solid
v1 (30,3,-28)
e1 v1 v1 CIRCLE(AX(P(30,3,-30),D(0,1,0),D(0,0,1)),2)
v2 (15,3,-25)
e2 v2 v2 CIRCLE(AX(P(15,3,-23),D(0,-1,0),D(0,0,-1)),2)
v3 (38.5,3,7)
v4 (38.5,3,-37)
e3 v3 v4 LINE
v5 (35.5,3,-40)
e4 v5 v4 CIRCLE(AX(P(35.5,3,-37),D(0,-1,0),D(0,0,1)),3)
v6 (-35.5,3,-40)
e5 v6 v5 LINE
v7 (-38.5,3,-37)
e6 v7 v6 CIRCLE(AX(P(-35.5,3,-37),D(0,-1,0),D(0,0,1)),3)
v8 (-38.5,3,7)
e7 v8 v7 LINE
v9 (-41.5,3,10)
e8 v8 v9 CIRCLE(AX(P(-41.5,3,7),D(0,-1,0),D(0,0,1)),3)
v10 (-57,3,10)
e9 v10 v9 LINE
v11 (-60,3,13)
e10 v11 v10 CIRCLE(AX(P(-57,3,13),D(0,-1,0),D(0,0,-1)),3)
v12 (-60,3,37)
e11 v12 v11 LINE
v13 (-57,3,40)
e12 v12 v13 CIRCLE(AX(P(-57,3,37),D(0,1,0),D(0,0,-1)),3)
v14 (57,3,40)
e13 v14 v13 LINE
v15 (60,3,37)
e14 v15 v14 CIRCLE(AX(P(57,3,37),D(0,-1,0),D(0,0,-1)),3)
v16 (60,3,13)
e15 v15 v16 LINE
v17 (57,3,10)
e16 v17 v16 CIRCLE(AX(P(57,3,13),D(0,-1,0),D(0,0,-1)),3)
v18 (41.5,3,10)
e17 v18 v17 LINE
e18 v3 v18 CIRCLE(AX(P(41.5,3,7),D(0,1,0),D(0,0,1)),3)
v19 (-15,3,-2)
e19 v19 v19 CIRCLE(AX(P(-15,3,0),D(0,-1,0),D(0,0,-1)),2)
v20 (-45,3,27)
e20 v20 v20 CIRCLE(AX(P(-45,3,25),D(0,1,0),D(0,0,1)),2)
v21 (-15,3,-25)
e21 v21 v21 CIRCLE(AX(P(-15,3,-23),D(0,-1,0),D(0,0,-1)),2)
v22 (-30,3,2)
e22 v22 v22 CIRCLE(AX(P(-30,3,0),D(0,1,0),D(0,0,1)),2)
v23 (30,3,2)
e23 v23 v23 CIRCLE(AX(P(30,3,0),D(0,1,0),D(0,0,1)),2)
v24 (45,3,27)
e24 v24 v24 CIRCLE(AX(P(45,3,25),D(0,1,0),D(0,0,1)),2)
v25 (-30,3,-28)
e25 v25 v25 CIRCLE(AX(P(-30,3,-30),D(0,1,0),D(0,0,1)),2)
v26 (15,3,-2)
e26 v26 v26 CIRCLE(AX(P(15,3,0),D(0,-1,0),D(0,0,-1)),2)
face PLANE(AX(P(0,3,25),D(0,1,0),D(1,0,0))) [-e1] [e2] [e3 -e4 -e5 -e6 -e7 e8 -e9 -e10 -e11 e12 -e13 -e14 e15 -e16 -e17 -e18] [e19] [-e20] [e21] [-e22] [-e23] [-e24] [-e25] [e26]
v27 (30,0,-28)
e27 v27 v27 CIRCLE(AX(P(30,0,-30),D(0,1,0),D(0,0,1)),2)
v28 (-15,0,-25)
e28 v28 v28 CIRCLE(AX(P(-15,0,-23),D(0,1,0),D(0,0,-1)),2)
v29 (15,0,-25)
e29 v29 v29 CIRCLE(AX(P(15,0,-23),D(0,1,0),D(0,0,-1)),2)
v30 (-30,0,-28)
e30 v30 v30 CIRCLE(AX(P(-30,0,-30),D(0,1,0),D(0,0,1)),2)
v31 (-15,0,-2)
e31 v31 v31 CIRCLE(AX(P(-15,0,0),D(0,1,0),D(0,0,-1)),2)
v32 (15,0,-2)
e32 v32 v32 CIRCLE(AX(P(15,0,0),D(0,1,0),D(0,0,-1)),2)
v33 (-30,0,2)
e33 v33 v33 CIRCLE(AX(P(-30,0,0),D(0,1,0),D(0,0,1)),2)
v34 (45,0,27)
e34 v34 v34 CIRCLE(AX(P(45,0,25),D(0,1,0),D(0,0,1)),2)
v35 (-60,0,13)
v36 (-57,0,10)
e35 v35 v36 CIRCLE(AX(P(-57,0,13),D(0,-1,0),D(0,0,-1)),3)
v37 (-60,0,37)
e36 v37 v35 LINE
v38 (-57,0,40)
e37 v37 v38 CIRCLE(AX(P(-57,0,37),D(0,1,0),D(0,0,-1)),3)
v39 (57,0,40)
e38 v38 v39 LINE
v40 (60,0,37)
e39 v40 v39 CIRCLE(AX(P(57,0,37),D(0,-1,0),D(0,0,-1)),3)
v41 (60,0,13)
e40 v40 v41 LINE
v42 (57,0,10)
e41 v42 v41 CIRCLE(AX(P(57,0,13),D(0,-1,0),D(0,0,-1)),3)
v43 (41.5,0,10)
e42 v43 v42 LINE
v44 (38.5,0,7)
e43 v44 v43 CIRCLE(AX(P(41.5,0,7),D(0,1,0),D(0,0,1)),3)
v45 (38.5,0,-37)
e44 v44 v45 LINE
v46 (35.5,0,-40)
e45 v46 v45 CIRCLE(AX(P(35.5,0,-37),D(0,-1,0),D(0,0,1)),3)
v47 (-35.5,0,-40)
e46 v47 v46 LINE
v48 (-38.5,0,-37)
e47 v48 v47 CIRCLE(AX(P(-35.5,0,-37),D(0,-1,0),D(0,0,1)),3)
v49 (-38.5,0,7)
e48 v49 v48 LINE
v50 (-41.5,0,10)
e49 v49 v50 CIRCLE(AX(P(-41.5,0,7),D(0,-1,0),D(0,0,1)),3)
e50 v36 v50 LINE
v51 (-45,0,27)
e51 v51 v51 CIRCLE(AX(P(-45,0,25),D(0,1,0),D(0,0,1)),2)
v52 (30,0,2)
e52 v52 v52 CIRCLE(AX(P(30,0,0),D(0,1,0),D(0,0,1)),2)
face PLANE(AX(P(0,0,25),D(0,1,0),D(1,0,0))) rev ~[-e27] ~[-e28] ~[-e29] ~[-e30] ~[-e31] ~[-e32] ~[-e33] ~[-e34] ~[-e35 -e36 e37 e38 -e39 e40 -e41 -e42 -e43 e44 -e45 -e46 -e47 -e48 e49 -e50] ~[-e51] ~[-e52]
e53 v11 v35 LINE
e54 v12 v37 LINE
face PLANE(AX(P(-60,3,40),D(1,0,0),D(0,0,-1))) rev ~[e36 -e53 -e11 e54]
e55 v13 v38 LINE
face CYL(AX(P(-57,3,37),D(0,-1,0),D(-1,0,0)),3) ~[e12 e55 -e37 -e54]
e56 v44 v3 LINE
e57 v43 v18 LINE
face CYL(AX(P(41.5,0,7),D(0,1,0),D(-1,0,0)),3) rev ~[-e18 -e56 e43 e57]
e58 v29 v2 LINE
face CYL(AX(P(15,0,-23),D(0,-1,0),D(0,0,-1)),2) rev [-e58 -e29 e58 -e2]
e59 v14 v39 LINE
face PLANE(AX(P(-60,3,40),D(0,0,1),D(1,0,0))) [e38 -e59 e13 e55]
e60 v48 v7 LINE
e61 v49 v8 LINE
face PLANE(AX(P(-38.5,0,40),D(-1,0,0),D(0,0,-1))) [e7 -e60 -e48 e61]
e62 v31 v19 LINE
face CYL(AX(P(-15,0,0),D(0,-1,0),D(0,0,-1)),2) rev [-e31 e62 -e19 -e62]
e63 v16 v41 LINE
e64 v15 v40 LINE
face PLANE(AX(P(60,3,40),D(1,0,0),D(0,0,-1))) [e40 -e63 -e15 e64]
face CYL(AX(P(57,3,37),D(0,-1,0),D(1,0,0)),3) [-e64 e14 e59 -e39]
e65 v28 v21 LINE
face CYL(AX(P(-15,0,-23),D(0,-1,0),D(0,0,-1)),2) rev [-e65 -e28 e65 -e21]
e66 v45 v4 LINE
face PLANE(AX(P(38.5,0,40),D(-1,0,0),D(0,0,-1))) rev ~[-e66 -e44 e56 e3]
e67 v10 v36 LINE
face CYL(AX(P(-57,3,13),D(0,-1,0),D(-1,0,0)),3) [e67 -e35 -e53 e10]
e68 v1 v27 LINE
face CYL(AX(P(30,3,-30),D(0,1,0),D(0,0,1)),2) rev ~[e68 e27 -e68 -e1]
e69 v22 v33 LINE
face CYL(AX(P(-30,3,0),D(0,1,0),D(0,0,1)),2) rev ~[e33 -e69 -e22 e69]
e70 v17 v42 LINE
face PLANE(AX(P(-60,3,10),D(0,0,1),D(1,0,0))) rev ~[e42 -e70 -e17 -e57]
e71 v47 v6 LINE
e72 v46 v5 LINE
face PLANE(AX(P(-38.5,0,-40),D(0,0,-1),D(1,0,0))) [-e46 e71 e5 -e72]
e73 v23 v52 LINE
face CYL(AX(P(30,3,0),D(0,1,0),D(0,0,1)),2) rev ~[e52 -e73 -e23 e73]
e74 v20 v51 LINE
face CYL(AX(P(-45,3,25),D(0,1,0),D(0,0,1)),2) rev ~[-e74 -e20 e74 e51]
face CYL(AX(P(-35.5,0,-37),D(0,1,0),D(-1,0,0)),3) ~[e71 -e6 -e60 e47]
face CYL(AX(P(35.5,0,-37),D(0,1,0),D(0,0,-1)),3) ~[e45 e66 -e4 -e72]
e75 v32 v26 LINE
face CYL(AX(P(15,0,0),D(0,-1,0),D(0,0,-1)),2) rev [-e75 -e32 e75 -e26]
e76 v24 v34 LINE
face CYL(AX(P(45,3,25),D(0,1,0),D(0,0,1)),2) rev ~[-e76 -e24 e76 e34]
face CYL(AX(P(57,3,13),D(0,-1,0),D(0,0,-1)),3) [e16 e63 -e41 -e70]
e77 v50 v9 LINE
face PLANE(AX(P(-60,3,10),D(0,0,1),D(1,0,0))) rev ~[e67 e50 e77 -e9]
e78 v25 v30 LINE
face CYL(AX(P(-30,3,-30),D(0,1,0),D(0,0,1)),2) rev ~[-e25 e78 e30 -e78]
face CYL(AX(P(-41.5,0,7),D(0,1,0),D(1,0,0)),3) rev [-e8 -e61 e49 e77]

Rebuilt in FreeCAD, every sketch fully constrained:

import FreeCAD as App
import Part
import Sketcher


def edges_at(feature, points):
    """Names of the edges that pass closest to the given points."""
    edges = feature.Shape.Edges
    near = lambda p: min(range(len(edges)), key=lambda i: edges[i].distToShape(Part.Vertex(*p))[0])
    return sorted({f"Edge{near(p) + 1}" for p in points})


def add_polygon(sketch, points):
    """Adds a closed chain of lines whose ends are joined by coincident constraints."""
    first, n = sketch.GeometryCount, len(points)
    for a, b in zip(points, points[1:] + points[:1]):
        sketch.addGeometry(Part.LineSegment(App.Vector(*a, 0), App.Vector(*b, 0)), False)
    for i in range(n):
        sketch.addConstraint(Sketcher.Constraint("Coincident", first + i, 2, first + (i + 1) % n, 1))

doc = App.newDocument("Part")
body = doc.addObject("PartDesign::Body", "Body")

sketch1 = doc.addObject("Sketcher::SketchObject", "Sketch")
body.addObject(sketch1)
sketch1.AttachmentSupport = (doc.XZ_Plane, [""])
sketch1.MapMode = "FlatFace"
add_polygon(sketch1, [(-38.5, -40), (-38.5, 40), (38.5, 40), (38.5, -40)])
sketch1.addConstraint([
    Sketcher.Constraint("Vertical", 0),
    Sketcher.Constraint("Horizontal", 1),
    Sketcher.Constraint("Vertical", 2),
    Sketcher.Constraint("Horizontal", 3),
    Sketcher.Constraint("Symmetric", 0, 2, 2, 2, -1, 1),
    Sketcher.Constraint("DistanceX", 1, 1, 1, 2, 77.0),
    Sketcher.Constraint("DistanceY", 0, 1, 0, 2, 80.0),
])
pad1 = doc.addObject("PartDesign::Pad", "Pad")
body.addObject(pad1)
pad1.Profile = sketch1
pad1.Length = 3
pad1.Reversed = True

sketch2 = doc.addObject("Sketcher::SketchObject", "Sketch001")
body.addObject(sketch2)
sketch2.AttachmentSupport = (doc.XZ_Plane, [""])
sketch2.MapMode = "FlatFace"
sketch2.AttachmentOffset = App.Placement(App.Vector(0, 0, -3), App.Rotation())
sketch2.addGeometry(Part.Circle(App.Vector(-23.5, 25, 0), App.Vector(0, 0, 1), 2.5), False)
sketch2.addConstraint([
    Sketcher.Constraint("Diameter", 0, 5.0),
    Sketcher.Constraint("DistanceY", -1, 1, 0, 3, 25.0),
    Sketcher.Constraint("DistanceX", 0, 3, -1, 1, 23.5),
])
pocket1 = doc.addObject("PartDesign::Pocket", "Pocket")
body.addObject(pocket1)
pocket1.Profile = sketch2
pocket1.Type = "UpToFirst"
pocket1.Reversed = True

sketch3 = doc.addObject("Sketcher::SketchObject", "Sketch002")
body.addObject(sketch3)
sketch3.AttachmentSupport = (doc.XZ_Plane, [""])
sketch3.MapMode = "FlatFace"
sketch3.AttachmentOffset = App.Placement(App.Vector(0, 0, -3), App.Rotation())
sketch3.addGeometry(Part.Circle(App.Vector(23.5, 25, 0), App.Vector(0, 0, 1), 2.5), False)
sketch3.addConstraint([
    Sketcher.Constraint("Diameter", 0, 5.0),
    Sketcher.Constraint("DistanceY", -1, 1, 0, 3, 25.0),
    Sketcher.Constraint("DistanceX", -1, 1, 0, 3, 23.5),
])
pocket2 = doc.addObject("PartDesign::Pocket", "Pocket001")
body.addObject(pocket2)
pocket2.Profile = sketch3
pocket2.Type = "UpToFirst"
pocket2.Reversed = True

sketch4 = doc.addObject("Sketcher::SketchObject", "Sketch003")
body.addObject(sketch4)
sketch4.AttachmentSupport = (doc.XZ_Plane, [""])
sketch4.MapMode = "FlatFace"
sketch4.AttachmentOffset = App.Placement(App.Vector(0, 0, -3), App.Rotation())
sketch4.addGeometry(Part.Circle(App.Vector(-30, -30, 0), App.Vector(0, 0, 1), 2), False)
sketch4.addConstraint([
    Sketcher.Constraint("Diameter", 0, 4.0),
    Sketcher.Constraint("DistanceX", 0, 3, -1, 1, 30.0),
    Sketcher.Constraint("DistanceY", 0, 3, -1, 1, 30.0),
])
pocket3 = doc.addObject("PartDesign::Pocket", "Pocket002")
body.addObject(pocket3)
pocket3.Profile = sketch4
pocket3.Type = "UpToFirst"
pocket3.Reversed = True

sketch5 = doc.addObject("Sketcher::SketchObject", "Sketch004")
body.addObject(sketch5)
sketch5.AttachmentSupport = (doc.XZ_Plane, [""])
sketch5.MapMode = "FlatFace"
sketch5.AttachmentOffset = App.Placement(App.Vector(0, 0, -3), App.Rotation())
sketch5.addGeometry(Part.Circle(App.Vector(-30, 0, 0), App.Vector(0, 0, 1), 2), False)
sketch5.addConstraint([
    Sketcher.Constraint("PointOnObject", 0, 3, -1),
    Sketcher.Constraint("Diameter", 0, 4.0),
    Sketcher.Constraint("DistanceX", 0, 3, -1, 1, 30.0),
])
pocket4 = doc.addObject("PartDesign::Pocket", "Pocket003")
body.addObject(pocket4)
pocket4.Profile = sketch5
pocket4.Type = "UpToFirst"
pocket4.Reversed = True

sketch6 = doc.addObject("Sketcher::SketchObject", "Sketch005")
body.addObject(sketch6)
sketch6.AttachmentSupport = (doc.XZ_Plane, [""])
sketch6.MapMode = "FlatFace"
sketch6.AttachmentOffset = App.Placement(App.Vector(0, 0, -3), App.Rotation())
sketch6.addGeometry(Part.Circle(App.Vector(30, 0, 0), App.Vector(0, 0, 1), 2), False)
sketch6.addConstraint([
    Sketcher.Constraint("PointOnObject", 0, 3, -1),
    Sketcher.Constraint("Diameter", 0, 4.0),
    Sketcher.Constraint("DistanceX", -1, 1, 0, 3, 30.0),
])
pocket5 = doc.addObject("PartDesign::Pocket", "Pocket004")
body.addObject(pocket5)
pocket5.Profile = sketch6
pocket5.Type = "UpToFirst"
pocket5.Reversed = True

sketch7 = doc.addObject("Sketcher::SketchObject", "Sketch006")
body.addObject(sketch7)
sketch7.AttachmentSupport = (doc.XZ_Plane, [""])
sketch7.MapMode = "FlatFace"
sketch7.AttachmentOffset = App.Placement(App.Vector(0, 0, -3), App.Rotation())
sketch7.addGeometry(Part.Circle(App.Vector(30, -30, 0), App.Vector(0, 0, 1), 2), False)
sketch7.addConstraint([
    Sketcher.Constraint("Diameter", 0, 4.0),
    Sketcher.Constraint("DistanceX", -1, 1, 0, 3, 30.0),
    Sketcher.Constraint("DistanceY", 0, 3, -1, 1, 30.0),
])
pocket6 = doc.addObject("PartDesign::Pocket", "Pocket005")
body.addObject(pocket6)
pocket6.Profile = sketch7
pocket6.Type = "UpToFirst"
pocket6.Reversed = True
doc.recompute()

fillet = doc.addObject("PartDesign::Fillet", "Fillet")
body.addObject(fillet)
fillet.Base = (pocket6, edges_at(pocket6, [(-38.5, 1.5, -40)]))
fillet.Radius = 3
doc.recompute()

fillet2 = doc.addObject("PartDesign::Fillet", "Fillet001")
body.addObject(fillet2)
fillet2.Base = (fillet, edges_at(fillet, [(38.5, 1.5, 40), (-38.5, 1.5, 40), (38.5, 1.5, -40)]))
fillet2.Radius = 3

sketch8 = doc.addObject("Sketcher::SketchObject", "Sketch007")
body.addObject(sketch8)
sketch8.AttachmentSupport = (doc.XZ_Plane, [""])
sketch8.MapMode = "FlatFace"
sketch8.addGeometry(Part.Circle(App.Vector(-15, -23, 0), App.Vector(0, 0, 1), 2), False)
sketch8.addConstraint([
    Sketcher.Constraint("Diameter", 0, 4.0),
    Sketcher.Constraint("DistanceX", 0, 3, -1, 1, 15.0),
    Sketcher.Constraint("DistanceY", 0, 3, -1, 1, 23.0),
])
pocket7 = doc.addObject("PartDesign::Pocket", "Pocket006")
body.addObject(pocket7)
pocket7.Profile = sketch8
pocket7.Type = "UpToFirst"

sketch9 = doc.addObject("Sketcher::SketchObject", "Sketch008")
body.addObject(sketch9)
sketch9.AttachmentSupport = (doc.XZ_Plane, [""])
sketch9.MapMode = "FlatFace"
sketch9.addGeometry(Part.Circle(App.Vector(15, -23, 0), App.Vector(0, 0, 1), 2), False)
sketch9.addConstraint([
    Sketcher.Constraint("Diameter", 0, 4.0),
    Sketcher.Constraint("DistanceX", -1, 1, 0, 3, 15.0),
    Sketcher.Constraint("DistanceY", 0, 3, -1, 1, 23.0),
])
pocket8 = doc.addObject("PartDesign::Pocket", "Pocket007")
body.addObject(pocket8)
pocket8.Profile = sketch9
pocket8.Type = "UpToFirst"

sketch10 = doc.addObject("Sketcher::SketchObject", "Sketch009")
body.addObject(sketch10)
sketch10.AttachmentSupport = (doc.XZ_Plane, [""])
sketch10.MapMode = "FlatFace"
sketch10.addGeometry(Part.Circle(App.Vector(-15, 0, 0), App.Vector(0, 0, 1), 2), False)
sketch10.addConstraint([
    Sketcher.Constraint("PointOnObject", 0, 3, -1),
    Sketcher.Constraint("Diameter", 0, 4.0),
    Sketcher.Constraint("DistanceX", 0, 3, -1, 1, 15.0),
])
pocket9 = doc.addObject("PartDesign::Pocket", "Pocket008")
body.addObject(pocket9)
pocket9.Profile = sketch10
pocket9.Type = "UpToFirst"

sketch11 = doc.addObject("Sketcher::SketchObject", "Sketch010")
body.addObject(sketch11)
sketch11.AttachmentSupport = (doc.XZ_Plane, [""])
sketch11.MapMode = "FlatFace"
sketch11.addGeometry(Part.Circle(App.Vector(15, 0, 0), App.Vector(0, 0, 1), 2), False)
sketch11.addConstraint([
    Sketcher.Constraint("PointOnObject", 0, 3, -1),
    Sketcher.Constraint("Diameter", 0, 4.0),
    Sketcher.Constraint("DistanceX", -1, 1, 0, 3, 15.0),
])
pocket10 = doc.addObject("PartDesign::Pocket", "Pocket009")
body.addObject(pocket10)
pocket10.Profile = sketch11
pocket10.Type = "UpToFirst"

sketch12 = doc.addObject("Sketcher::SketchObject", "Sketch011")
body.addObject(sketch12)
sketch12.AttachmentSupport = (doc.XZ_Plane, [""])
sketch12.MapMode = "FlatFace"
sketch12.AttachmentOffset = App.Placement(App.Vector(0, 0, -3), App.Rotation())
add_polygon(sketch12, [(-60, 10), (-60, 40), (60, 40), (60, 10)])
sketch12.addConstraint([
    Sketcher.Constraint("Vertical", 0),
    Sketcher.Constraint("Horizontal", 1),
    Sketcher.Constraint("Vertical", 2),
    Sketcher.Constraint("Horizontal", 3),
    Sketcher.Constraint("DistanceX", 1, 1, 1, 2, 120.0),
    Sketcher.Constraint("DistanceY", 0, 1, 0, 2, 30.0),
    Sketcher.Constraint("DistanceX", 0, 2, -1, 1, 60.0),
    Sketcher.Constraint("DistanceY", -1, 1, 0, 2, 40.0),
])
pad2 = doc.addObject("PartDesign::Pad", "Pad001")
body.addObject(pad2)
pad2.Profile = sketch12
pad2.Length = 3
doc.recompute()

fillet3 = doc.addObject("PartDesign::Fillet", "Fillet002")
body.addObject(fillet3)
fillet3.Base = (pad2, edges_at(pad2, [
    (-60, 1.5, 10),
    (60, 1.5, 40),
    (-60, 1.5, 40),
    (38.5, 1.5, 10),
    (-38.5, 1.5, 10),
    (60, 1.5, 10),
]))
fillet3.Radius = 3

sketch13 = doc.addObject("Sketcher::SketchObject", "Sketch012")
body.addObject(sketch13)
sketch13.AttachmentSupport = (doc.XZ_Plane, [""])
sketch13.MapMode = "FlatFace"
sketch13.AttachmentOffset = App.Placement(App.Vector(0, 0, -3), App.Rotation())
sketch13.addGeometry(Part.Circle(App.Vector(-45, 25, 0), App.Vector(0, 0, 1), 2), False)
sketch13.addConstraint([
    Sketcher.Constraint("Diameter", 0, 4.0),
    Sketcher.Constraint("DistanceX", 0, 3, -1, 1, 45.0),
    Sketcher.Constraint("DistanceY", -1, 1, 0, 3, 25.0),
])
pocket11 = doc.addObject("PartDesign::Pocket", "Pocket010")
body.addObject(pocket11)
pocket11.Profile = sketch13
pocket11.Type = "UpToFirst"
pocket11.Reversed = True

sketch14 = doc.addObject("Sketcher::SketchObject", "Sketch013")
body.addObject(sketch14)
sketch14.AttachmentSupport = (doc.XZ_Plane, [""])
sketch14.MapMode = "FlatFace"
sketch14.AttachmentOffset = App.Placement(App.Vector(0, 0, -3), App.Rotation())
sketch14.addGeometry(Part.Circle(App.Vector(45, 25, 0), App.Vector(0, 0, 1), 2), False)
sketch14.addConstraint([
    Sketcher.Constraint("Diameter", 0, 4.0),
    Sketcher.Constraint("DistanceX", -1, 1, 0, 3, 45.0),
    Sketcher.Constraint("DistanceY", -1, 1, 0, 3, 25.0),
])
pocket12 = doc.addObject("PartDesign::Pocket", "Pocket011")
body.addObject(pocket12)
pocket12.Profile = sketch14
pocket12.Type = "UpToFirst"
pocket12.Reversed = True

doc.recompute()
